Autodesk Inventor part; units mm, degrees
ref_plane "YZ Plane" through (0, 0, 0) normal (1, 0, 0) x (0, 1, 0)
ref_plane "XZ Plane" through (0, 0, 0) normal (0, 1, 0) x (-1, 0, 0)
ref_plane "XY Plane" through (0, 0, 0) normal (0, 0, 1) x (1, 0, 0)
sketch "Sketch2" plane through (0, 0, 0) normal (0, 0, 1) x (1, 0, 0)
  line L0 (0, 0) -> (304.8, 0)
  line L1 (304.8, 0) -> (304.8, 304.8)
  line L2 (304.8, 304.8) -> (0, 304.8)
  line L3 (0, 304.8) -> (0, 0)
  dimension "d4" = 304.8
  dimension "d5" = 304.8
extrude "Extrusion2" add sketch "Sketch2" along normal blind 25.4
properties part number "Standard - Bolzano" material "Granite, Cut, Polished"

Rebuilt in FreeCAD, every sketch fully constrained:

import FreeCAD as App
import Part
import Sketcher
Q = App.Units.Quantity


def add_polygon(sketch, points):
    """Adds a closed chain of lines whose ends are joined by coincident constraints."""
    first, n = sketch.GeometryCount, len(points)
    for a, b in zip(points, points[1:] + points[:1]):
        sketch.addGeometry(Part.LineSegment(App.Vector(*a, 0), App.Vector(*b, 0)), False)
    for i in range(n):
        sketch.addConstraint(Sketcher.Constraint("Coincident", first + i, 2, first + (i + 1) % n, 1))

doc = App.newDocument("Part")
body = doc.addObject("PartDesign::Body", "Body")

# Sketch on XY plane
sketch1 = body.newObject("Sketcher::SketchObject", "Sketch")
sketch1.AttachmentSupport = (doc.getObject("XY_Plane"), [""])
sketch1.MapMode = "FlatFace"
add_polygon(sketch1, [(0, 304.8), (0, 0), (304.8, 0), (304.8, 304.8)])  # lines 0-3
sketch1.addConstraint(Sketcher.Constraint("Vertical", 0))
sketch1.addConstraint(Sketcher.Constraint("Horizontal", 1))
sketch1.addConstraint(Sketcher.Constraint("Vertical", 2))
sketch1.addConstraint(Sketcher.Constraint("Horizontal", 3))
sketch1.addConstraint(Sketcher.Constraint("Coincident", 0, 2, -1, 1))
sketch1.addConstraint(Sketcher.Constraint("Equal", 3, 0))
sketch1.addConstraint(Sketcher.Constraint("DistanceX", 1, 1, 1, 2, Q("12 in")))
pad1 = body.newObject("PartDesign::Pad", "Pad")
pad1.Profile = sketch1
pad1.Length = Q("1 in")

doc.recompute()
